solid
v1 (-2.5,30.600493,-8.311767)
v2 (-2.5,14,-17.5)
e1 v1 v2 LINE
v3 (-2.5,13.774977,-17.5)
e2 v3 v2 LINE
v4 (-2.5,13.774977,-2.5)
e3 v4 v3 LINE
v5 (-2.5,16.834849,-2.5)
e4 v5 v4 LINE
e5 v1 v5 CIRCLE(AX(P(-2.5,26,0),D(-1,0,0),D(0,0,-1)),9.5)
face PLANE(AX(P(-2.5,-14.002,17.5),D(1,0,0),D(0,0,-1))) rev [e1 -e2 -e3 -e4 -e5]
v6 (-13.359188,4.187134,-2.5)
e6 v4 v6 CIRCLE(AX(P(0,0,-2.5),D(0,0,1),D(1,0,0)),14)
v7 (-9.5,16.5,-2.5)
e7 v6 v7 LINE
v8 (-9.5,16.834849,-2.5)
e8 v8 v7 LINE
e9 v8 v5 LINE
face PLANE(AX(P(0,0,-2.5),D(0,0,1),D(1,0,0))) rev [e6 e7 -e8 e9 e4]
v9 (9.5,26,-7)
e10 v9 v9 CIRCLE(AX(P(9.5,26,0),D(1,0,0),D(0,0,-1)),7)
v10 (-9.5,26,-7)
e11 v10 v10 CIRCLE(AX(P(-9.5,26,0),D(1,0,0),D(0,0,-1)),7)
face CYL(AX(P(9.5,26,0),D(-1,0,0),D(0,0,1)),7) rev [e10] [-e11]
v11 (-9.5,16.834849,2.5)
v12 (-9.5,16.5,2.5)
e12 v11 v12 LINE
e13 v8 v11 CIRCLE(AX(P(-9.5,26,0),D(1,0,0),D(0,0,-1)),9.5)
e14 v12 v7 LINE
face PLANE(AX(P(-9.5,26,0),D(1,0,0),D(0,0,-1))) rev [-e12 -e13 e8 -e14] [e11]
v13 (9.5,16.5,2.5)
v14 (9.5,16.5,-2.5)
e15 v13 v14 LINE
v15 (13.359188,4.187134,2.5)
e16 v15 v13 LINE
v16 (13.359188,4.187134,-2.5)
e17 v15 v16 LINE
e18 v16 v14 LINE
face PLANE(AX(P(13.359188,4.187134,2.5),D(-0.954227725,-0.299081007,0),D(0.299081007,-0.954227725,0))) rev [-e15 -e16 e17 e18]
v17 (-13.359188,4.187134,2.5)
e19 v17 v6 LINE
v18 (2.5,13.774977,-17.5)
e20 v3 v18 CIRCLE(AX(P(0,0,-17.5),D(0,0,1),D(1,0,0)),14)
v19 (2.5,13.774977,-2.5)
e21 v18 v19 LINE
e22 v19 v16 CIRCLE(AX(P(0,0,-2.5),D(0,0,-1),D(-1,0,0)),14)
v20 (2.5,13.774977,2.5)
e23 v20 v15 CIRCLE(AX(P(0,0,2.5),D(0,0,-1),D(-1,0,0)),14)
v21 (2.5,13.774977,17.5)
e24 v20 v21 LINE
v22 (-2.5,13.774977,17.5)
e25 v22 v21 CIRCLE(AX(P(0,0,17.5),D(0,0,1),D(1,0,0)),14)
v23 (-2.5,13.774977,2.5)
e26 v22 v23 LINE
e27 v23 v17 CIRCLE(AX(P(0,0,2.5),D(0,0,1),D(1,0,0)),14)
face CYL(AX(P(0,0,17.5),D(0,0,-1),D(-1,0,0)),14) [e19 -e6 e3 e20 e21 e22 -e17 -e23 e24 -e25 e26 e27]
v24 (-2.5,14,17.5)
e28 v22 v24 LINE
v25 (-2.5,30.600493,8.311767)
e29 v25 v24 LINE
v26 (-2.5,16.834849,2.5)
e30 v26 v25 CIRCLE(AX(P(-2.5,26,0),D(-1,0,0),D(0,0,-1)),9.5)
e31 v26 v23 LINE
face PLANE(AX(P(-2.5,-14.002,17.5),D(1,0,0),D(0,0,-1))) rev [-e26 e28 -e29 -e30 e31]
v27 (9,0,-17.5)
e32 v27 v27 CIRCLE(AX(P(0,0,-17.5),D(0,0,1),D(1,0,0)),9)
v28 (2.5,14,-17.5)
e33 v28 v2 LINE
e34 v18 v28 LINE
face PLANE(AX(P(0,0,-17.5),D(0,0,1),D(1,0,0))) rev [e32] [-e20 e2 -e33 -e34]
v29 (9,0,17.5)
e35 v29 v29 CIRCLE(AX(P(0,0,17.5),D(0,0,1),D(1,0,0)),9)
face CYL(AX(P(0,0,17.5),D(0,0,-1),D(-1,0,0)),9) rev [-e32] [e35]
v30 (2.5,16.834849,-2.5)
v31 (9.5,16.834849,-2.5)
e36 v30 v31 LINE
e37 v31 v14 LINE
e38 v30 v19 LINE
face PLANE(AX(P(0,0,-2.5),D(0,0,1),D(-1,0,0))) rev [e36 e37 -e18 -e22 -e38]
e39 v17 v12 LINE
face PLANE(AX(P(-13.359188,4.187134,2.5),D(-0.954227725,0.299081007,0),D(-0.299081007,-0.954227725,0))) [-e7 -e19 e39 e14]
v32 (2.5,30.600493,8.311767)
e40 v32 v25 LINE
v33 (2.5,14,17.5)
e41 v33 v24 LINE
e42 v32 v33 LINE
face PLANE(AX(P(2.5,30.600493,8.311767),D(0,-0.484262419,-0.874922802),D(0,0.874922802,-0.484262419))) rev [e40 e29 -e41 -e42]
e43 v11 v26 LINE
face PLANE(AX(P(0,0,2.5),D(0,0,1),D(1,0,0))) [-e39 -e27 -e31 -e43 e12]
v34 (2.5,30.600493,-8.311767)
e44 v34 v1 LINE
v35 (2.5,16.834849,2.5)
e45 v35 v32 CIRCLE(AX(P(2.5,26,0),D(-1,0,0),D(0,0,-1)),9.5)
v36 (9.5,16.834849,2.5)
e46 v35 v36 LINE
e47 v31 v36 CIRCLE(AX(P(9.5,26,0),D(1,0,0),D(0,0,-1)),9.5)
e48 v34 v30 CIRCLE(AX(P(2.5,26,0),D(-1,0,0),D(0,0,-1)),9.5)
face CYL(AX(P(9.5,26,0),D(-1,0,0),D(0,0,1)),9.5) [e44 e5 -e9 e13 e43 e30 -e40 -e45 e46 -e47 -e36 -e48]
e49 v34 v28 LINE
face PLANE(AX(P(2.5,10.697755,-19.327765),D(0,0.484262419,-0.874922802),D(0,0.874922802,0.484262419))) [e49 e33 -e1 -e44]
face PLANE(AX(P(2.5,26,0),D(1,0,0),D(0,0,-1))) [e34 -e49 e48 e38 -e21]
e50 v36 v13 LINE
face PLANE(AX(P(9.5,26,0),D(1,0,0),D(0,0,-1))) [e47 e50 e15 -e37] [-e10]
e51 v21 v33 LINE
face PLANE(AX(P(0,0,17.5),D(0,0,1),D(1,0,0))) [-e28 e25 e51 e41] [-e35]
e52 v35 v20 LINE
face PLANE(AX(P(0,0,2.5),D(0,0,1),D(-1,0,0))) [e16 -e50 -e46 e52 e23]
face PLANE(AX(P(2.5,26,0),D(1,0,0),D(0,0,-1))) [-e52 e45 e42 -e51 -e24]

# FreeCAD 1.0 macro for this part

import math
import FreeCAD as App
import Part
import Sketcher

V = App.Vector

doc = App.newDocument("Part")
body = doc.addObject("PartDesign::Body", "Body")

# Sketch on XY plane
sketch1 = doc.addObject("Sketcher::SketchObject", "Sketch")
body.addObject(sketch1)
sketch1.AttachmentSupport = (doc.XY_Plane, [""])
sketch1.MapMode = "FlatFace"
sketch1.addGeometry([
    Part.Circle(V(0, 0, 0), V(0, 0, 1), 14),
    Part.Circle(V(0, 0, 0), V(0, 0, 1), 9),
], False)
sketch1.addConstraint([
    Sketcher.Constraint("Coincident", 0, 3, -1, 1),
    Sketcher.Constraint("Coincident", 1, 3, -1, 1),
    Sketcher.Constraint("Diameter", 0, 28.0),
    Sketcher.Constraint("Diameter", 1, 18.0),
])
pad1 = doc.addObject("PartDesign::Pad", "Pad")
body.addObject(pad1)
pad1.Profile = sketch1
pad1.Length = 35
pad1.Midplane = True
body2 = doc.addObject("PartDesign::Body", "Body001")

# Sketch on YZ plane
sketch2 = doc.addObject("Sketcher::SketchObject", "Sketch001")
body2.addObject(sketch2)
sketch2.AttachmentSupport = (doc.getObject("YZ_Plane001"), [""])
sketch2.MapMode = "FlatFace"
sketch2.addGeometry([
    Part.Circle(V(26, 0, 0), V(0, 0, 1), 10),
    Part.Circle(V(26, 0, 0), V(0, 0, 1), 7),
], False)
sketch2.addConstraint([
    Sketcher.Constraint("Coincident", 1, 3, 0, 3),
    Sketcher.Constraint("PointOnObject", 0, 3, -1),
    Sketcher.Constraint("Diameter", 0, 19.0),
    Sketcher.Constraint("Diameter", 1, 14.0),
    Sketcher.Constraint("DistanceX", -1, 1, 0, 3, 26.0),
])
pad2 = doc.addObject("PartDesign::Pad", "Pad001")
body2.addObject(pad2)
pad2.Profile = sketch2
pad2.Length = 19
pad2.Midplane = True

# Sketch on YZ plane
sketch3 = doc.addObject("Sketcher::SketchObject", "Sketch002")
body2.addObject(sketch3)
sketch3.AttachmentSupport = (doc.getObject("YZ_Plane001"), [""])
sketch3.MapMode = "FlatFace"
sketch3.addGeometry([
    Part.LineSegment(V(30.6, 8.3, 0), V(14, 17.5, 0)),
    Part.LineSegment(V(14, 17.5, 0), V(14, 0, 0)),
    Part.LineSegment(V(14, 0, 0), V(16.5, 0, 0)),
    Part.ArcOfCircle(Part.Circle(V(26, 0, 0), V(0, 0, 1), 9.5), math.radians(61), math.radians(180)),
], False)
sketch3.addConstraint([
    Sketcher.Constraint("Coincident", 0, 2, 1, 1),
    Sketcher.Constraint("Coincident", 1, 2, 2, 1),
    Sketcher.Constraint("Coincident", 2, 2, 3, 2),
    Sketcher.Constraint("Tangent", 3, 1, 0, 1),
    Sketcher.Constraint("Vertical", 1),
    Sketcher.Constraint("Horizontal", 2),
    Sketcher.Constraint("PointOnObject", 3, 3, -1),
    Sketcher.Constraint("PointOnObject", 1, 2, -1),
    Sketcher.Constraint("Radius", 3, 9.5),
    Sketcher.Constraint("DistanceX", 2, 1, 2, 2, 2.5),
    Sketcher.Constraint("DistanceY", 1, 2, 1, 1, 17.5),
    Sketcher.Constraint("DistanceX", -1, 1, 3, 3, 26.0),
])
pad3 = doc.addObject("PartDesign::Pad", "Pad002")
body2.addObject(pad3)
pad3.Profile = sketch3
pad3.Length = 5
pad3.Midplane = True
body.AllowCompound = True
doc.recompute()

boolean = doc.addObject("PartDesign::Boolean", "Boolean")
body.addObject(boolean)
boolean.Type = "Fuse"
boolean.addObjects([body2])

# Sketch on XZ plane
sketch4 = doc.addObject("Sketcher::SketchObject", "Sketch003")
body.addObject(sketch4)
sketch4.AttachmentSupport = (doc.XZ_Plane, [""])
sketch4.MapMode = "FlatFace"
sketch4.AttachmentOffset = App.Placement(V(0, 0, -14), App.Rotation())
sketch4.addGeometry([
    Part.LineSegment(V(-2, 18, 0), V(-2, 0, 0)),
    Part.LineSegment(V(-2, 0, 0), V(2, 0, 0)),
    Part.LineSegment(V(2, 0, 0), V(2, 18, 0)),
    Part.LineSegment(V(2, 18, 0), V(-2, 18, 0)),
], False)
sketch4.addConstraint([
    Sketcher.Constraint("Coincident", 0, 2, 1, 1),
    Sketcher.Constraint("Coincident", 1, 2, 2, 1),
    Sketcher.Constraint("Coincident", 2, 2, 3, 1),
    Sketcher.Constraint("Coincident", 3, 2, 0, 1),
    Sketcher.Constraint("Vertical", 0),
    Sketcher.Constraint("Horizontal", 1),
    Sketcher.Constraint("Vertical", 2),
    Sketcher.Constraint("Horizontal", 3),
    Sketcher.Constraint("Symmetric", 0, 2, 1, 2, -1, 1),
    Sketcher.Constraint("DistanceX", 1, 1, 1, 2, 5.0),
    Sketcher.Constraint("DistanceY", 0, 2, 0, 1, 17.5),
])
pad4 = doc.addObject("PartDesign::Pad", "Pad003")
body.addObject(pad4)
pad4.Profile = sketch4
pad4.Length = 0.225023

# Sketch on YZ plane
sketch5 = doc.addObject("Sketcher::SketchObject", "Sketch004")
body.addObject(sketch5)
sketch5.AttachmentSupport = (doc.YZ_Plane, [""])
sketch5.MapMode = "FlatFace"
sketch5.addGeometry([
    Part.LineSegment(V(14, -17.5, 0), V(30.6, -8.31, 0)),  # 0
    Part.ArcOfCircle(Part.Circle(V(26, 0, 0), V(0, 0, 1), 9.5), math.radians(-90), math.radians(-61)),  # 1
    Part.ArcOfCircle(Part.Circle(V(26, 0, 0), V(0, 0, 1), 9.5), math.radians(-180), math.radians(-90)),  # 2
    Part.LineSegment(V(16.5, 0, 0), V(13.65, 0, 0)),  # 3
    Part.LineSegment(V(13.65, 0, 0), V(13.65, -17.5, 0)),  # 4
    Part.LineSegment(V(13.65, -17.5, 0), V(14, -17.5, 0)),  # 5
], False)
sketch5.addConstraint([
    Sketcher.Constraint("Tangent", 0, 2, 1, 2),
    Sketcher.Constraint("Tangent", 1, 1, 2, 2),
    Sketcher.Constraint("Coincident", 2, 1, 3, 1),
    Sketcher.Constraint("Coincident", 3, 2, 4, 1),
    Sketcher.Constraint("Coincident", 4, 2, 5, 1),
    Sketcher.Constraint("Coincident", 5, 2, 0, 1),
    Sketcher.Constraint("Horizontal", 3),
    Sketcher.Constraint("Vertical", 4),
    Sketcher.Constraint("Horizontal", 5),
    Sketcher.Constraint("Equal", 1, 2),
    Sketcher.Constraint("PointOnObject", 1, 3, -1),
    Sketcher.Constraint("PointOnObject", 2, 1, -1),
    Sketcher.Constraint("Vertical", 2, 3, 1, 1),
    Sketcher.Constraint("Radius", 1, 9.5),
    Sketcher.Constraint("DistanceY", 4, 2, 4, 1, 17.5),
    Sketcher.Constraint("DistanceX", -1, 1, 1, 3, 26.0),
    Sketcher.Constraint("DistanceX", -1, 1, 5, 2, 14.0),
    Sketcher.Constraint("DistanceX", 3, 2, 3, 1, 2.849688),
])
pad5 = doc.addObject("PartDesign::Pad", "Pad004")
body.addObject(pad5)
pad5.Profile = sketch5
pad5.Length = 5
pad5.Midplane = True

# Sketch on XY plane
sketch6 = doc.addObject("Sketcher::SketchObject", "Sketch005")
body.addObject(sketch6)
sketch6.AttachmentSupport = (doc.XY_Plane, [""])
sketch6.MapMode = "FlatFace"
sketch6.addGeometry([
    Part.ArcOfCircle(Part.Circle(V(0, 0, 0), V(0, 0, 1), 14), math.radians(90), math.radians(163)),  # 0
    Part.LineSegment(V(0, 14, 0), V(0, 17.5, 0)),  # 1
    Part.LineSegment(V(0, 17.5, 0), V(-9.5, 17.5, 0)),  # 2
    Part.LineSegment(V(-9.5, 17.5, 0), V(-9.5, 16.5, 0)),  # 3
    Part.LineSegment(V(-9.5, 16.5, 0), V(-13.4, 4.2, 0)),  # 4
], False)
sketch6.addConstraint([
    Sketcher.Constraint("Coincident", 0, 1, 1, 1),
    Sketcher.Constraint("Coincident", 1, 2, 2, 1),
    Sketcher.Constraint("Coincident", 2, 2, 3, 1),
    Sketcher.Constraint("Coincident", 3, 2, 4, 1),
    Sketcher.Constraint("Tangent", 4, 2, 0, 2),
    Sketcher.Constraint("Vertical", 1),
    Sketcher.Constraint("Horizontal", 2),
    Sketcher.Constraint("Vertical", 3),
    Sketcher.Constraint("Coincident", 0, 3, -1, 1),
    Sketcher.Constraint("PointOnObject", 0, 1, -2),
    Sketcher.Constraint("Radius", 0, 14.0),
    Sketcher.Constraint("DistanceY", 3, 2, 3, 1, 1.0),
    Sketcher.Constraint("DistanceX", 2, 2, 2, 1, 9.5),
    Sketcher.Constraint("DistanceY", 1, 1, 1, 2, 3.5),
])
pad6 = doc.addObject("PartDesign::Pad", "Pad005")
body.addObject(pad6)
pad6.Profile = sketch6
pad6.Length = 5
pad6.Midplane = True
doc.recompute()

mirrored = doc.addObject("PartDesign::Mirrored", "Mirrored")
body.addObject(mirrored)
mirrored.Originals = [pad6]
mirrored.MirrorPlane = (doc.YZ_Plane, [""])
body.Tip = mirrored

doc.recompute()
